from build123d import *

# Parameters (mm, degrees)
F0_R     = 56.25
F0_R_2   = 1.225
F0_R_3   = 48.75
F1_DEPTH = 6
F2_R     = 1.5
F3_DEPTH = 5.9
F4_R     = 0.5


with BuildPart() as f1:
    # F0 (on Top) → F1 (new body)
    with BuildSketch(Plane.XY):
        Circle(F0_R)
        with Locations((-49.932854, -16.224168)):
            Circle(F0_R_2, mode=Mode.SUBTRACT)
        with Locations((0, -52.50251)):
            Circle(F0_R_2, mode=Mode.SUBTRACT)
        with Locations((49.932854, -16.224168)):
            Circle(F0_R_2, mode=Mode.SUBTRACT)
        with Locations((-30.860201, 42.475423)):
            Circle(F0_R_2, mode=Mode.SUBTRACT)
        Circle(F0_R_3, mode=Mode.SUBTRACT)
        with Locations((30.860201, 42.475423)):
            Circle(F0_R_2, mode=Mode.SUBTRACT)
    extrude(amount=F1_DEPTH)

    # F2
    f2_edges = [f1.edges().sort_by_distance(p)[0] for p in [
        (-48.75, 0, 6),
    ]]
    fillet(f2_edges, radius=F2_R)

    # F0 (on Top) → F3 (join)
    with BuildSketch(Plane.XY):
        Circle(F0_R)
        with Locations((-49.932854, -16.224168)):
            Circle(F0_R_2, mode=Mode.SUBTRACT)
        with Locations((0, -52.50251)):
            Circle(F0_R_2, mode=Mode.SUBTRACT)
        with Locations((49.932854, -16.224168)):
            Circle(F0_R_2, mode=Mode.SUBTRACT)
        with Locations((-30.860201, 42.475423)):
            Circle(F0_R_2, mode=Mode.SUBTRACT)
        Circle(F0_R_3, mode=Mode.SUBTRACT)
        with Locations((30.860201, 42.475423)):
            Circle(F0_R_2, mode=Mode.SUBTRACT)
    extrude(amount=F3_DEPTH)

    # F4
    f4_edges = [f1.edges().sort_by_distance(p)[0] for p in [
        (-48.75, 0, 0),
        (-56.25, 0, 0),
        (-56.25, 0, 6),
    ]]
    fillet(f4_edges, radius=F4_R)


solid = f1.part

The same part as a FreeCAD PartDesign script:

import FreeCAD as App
import Part
import Sketcher

V = App.Vector


def edges_at(feature, points):
    """Names of the edges that pass closest to the given points."""
    edges = feature.Shape.Edges
    near = lambda p: min(range(len(edges)), key=lambda i: edges[i].distToShape(Part.Vertex(*p))[0])
    return sorted({f"Edge{near(p) + 1}" for p in points})

doc = App.newDocument("Part")
body = doc.addObject("PartDesign::Body", "Body")

sketch1 = body.newObject("Sketcher::SketchObject", "Sketch")
sketch1.AttachmentSupport = (doc.getObject("XY_Plane"), [""])
sketch1.MapMode = "FlatFace"
sketch1.addGeometry([
    Part.Circle(V(0, 0, 0), V(0, 0, 1), 56.2),
    Part.Circle(V(-49.9, -16.2, 0), V(0, 0, 1), 1.2),
    Part.Circle(V(0, -52.5, 0), V(0, 0, 1), 1.2),
    Part.Circle(V(49.9, -16.2, 0), V(0, 0, 1), 1.2),
    Part.Circle(V(-30.9, 42.5, 0), V(0, 0, 1), 1.2),
    Part.Circle(V(0, 0, 0), V(0, 0, 1), 48.8),
    Part.Circle(V(30.9, 42.5, 0), V(0, 0, 1), 1.2),
], False)
sketch1.addConstraint([
    Sketcher.Constraint("Coincident", 0, 3, -1, 1),
    Sketcher.Constraint("Coincident", 5, 3, -1, 1),
    Sketcher.Constraint("Equal", 1, 2),
    Sketcher.Constraint("Equal", 2, 3),
    Sketcher.Constraint("Equal", 3, 4),
    Sketcher.Constraint("Equal", 4, 6),
    Sketcher.Constraint("Symmetric", 1, 3, 3, 3, -2),
    Sketcher.Constraint("Symmetric", 4, 3, 6, 3, -2),
    Sketcher.Constraint("PointOnObject", 2, 3, -2),
    Sketcher.Constraint("Diameter", 0, 112.5),
    Sketcher.Constraint("Diameter", 5, 97.5),
    Sketcher.Constraint("Diameter", 1, 2.45),
    Sketcher.Constraint("DistanceX", 4, 3, -1, 1, 30.860201),
    Sketcher.Constraint("DistanceY", 2, 3, -1, 1, 52.50251),
    Sketcher.Constraint("DistanceY", 1, 3, 4, 3, 58.699591),
    Sketcher.Constraint("DistanceX", 1, 3, -1, 1, 49.932854),
    Sketcher.Constraint("DistanceY", 1, 3, -1, 1, 16.224168),
])
pad1 = body.newObject("PartDesign::Pad", "Pad")
pad1.Profile = sketch1
pad1.Length = 6
doc.recompute()

fillet = body.newObject("PartDesign::Fillet", "Fillet")
fillet.Base = (pad1, edges_at(pad1, [(-48.75, 0, 6)]))
fillet.Radius = 1.5

sketch2 = body.newObject("Sketcher::SketchObject", "Sketch001")
sketch2.AttachmentSupport = (doc.getObject("XY_Plane"), [""])
sketch2.MapMode = "FlatFace"
sketch2.addGeometry([
    Part.Circle(V(0, 0, 0), V(0, 0, 1), 56.2),
    Part.Circle(V(-49.9, -16.2, 0), V(0, 0, 1), 1.2),
    Part.Circle(V(0, -52.5, 0), V(0, 0, 1), 1.2),
    Part.Circle(V(49.9, -16.2, 0), V(0, 0, 1), 1.2),
    Part.Circle(V(-30.9, 42.5, 0), V(0, 0, 1), 1.2),
    Part.Circle(V(0, 0, 0), V(0, 0, 1), 48.8),
    Part.Circle(V(30.9, 42.5, 0), V(0, 0, 1), 1.2),
], False)
sketch2.addConstraint([
    Sketcher.Constraint("Coincident", 0, 3, -1, 1),
    Sketcher.Constraint("Coincident", 5, 3, -1, 1),
    Sketcher.Constraint("Equal", 1, 2),
    Sketcher.Constraint("Equal", 2, 3),
    Sketcher.Constraint("Equal", 3, 4),
    Sketcher.Constraint("Equal", 4, 6),
    Sketcher.Constraint("Symmetric", 1, 3, 3, 3, -2),
    Sketcher.Constraint("Symmetric", 4, 3, 6, 3, -2),
    Sketcher.Constraint("PointOnObject", 2, 3, -2),
    Sketcher.Constraint("Diameter", 0, 112.5),
    Sketcher.Constraint("Diameter", 5, 97.5),
    Sketcher.Constraint("Diameter", 1, 2.45),
    Sketcher.Constraint("DistanceX", 4, 3, -1, 1, 30.860201),
    Sketcher.Constraint("DistanceY", 2, 3, -1, 1, 52.50251),
    Sketcher.Constraint("DistanceY", 1, 3, 4, 3, 58.699591),
    Sketcher.Constraint("DistanceX", 1, 3, -1, 1, 49.932854),
    Sketcher.Constraint("DistanceY", 1, 3, -1, 1, 16.224168),
])
pad2 = body.newObject("PartDesign::Pad", "Pad001")
pad2.Profile = sketch2
pad2.Length = 5.9
doc.recompute()

fillet2 = body.newObject("PartDesign::Fillet", "Fillet001")
fillet2.Base = (pad2, edges_at(pad2, [(-48.75, 0, 0), (-56.25, 0, 0), (-56.25, 0, 6)]))
fillet2.Radius = 0.5

doc.recompute()
